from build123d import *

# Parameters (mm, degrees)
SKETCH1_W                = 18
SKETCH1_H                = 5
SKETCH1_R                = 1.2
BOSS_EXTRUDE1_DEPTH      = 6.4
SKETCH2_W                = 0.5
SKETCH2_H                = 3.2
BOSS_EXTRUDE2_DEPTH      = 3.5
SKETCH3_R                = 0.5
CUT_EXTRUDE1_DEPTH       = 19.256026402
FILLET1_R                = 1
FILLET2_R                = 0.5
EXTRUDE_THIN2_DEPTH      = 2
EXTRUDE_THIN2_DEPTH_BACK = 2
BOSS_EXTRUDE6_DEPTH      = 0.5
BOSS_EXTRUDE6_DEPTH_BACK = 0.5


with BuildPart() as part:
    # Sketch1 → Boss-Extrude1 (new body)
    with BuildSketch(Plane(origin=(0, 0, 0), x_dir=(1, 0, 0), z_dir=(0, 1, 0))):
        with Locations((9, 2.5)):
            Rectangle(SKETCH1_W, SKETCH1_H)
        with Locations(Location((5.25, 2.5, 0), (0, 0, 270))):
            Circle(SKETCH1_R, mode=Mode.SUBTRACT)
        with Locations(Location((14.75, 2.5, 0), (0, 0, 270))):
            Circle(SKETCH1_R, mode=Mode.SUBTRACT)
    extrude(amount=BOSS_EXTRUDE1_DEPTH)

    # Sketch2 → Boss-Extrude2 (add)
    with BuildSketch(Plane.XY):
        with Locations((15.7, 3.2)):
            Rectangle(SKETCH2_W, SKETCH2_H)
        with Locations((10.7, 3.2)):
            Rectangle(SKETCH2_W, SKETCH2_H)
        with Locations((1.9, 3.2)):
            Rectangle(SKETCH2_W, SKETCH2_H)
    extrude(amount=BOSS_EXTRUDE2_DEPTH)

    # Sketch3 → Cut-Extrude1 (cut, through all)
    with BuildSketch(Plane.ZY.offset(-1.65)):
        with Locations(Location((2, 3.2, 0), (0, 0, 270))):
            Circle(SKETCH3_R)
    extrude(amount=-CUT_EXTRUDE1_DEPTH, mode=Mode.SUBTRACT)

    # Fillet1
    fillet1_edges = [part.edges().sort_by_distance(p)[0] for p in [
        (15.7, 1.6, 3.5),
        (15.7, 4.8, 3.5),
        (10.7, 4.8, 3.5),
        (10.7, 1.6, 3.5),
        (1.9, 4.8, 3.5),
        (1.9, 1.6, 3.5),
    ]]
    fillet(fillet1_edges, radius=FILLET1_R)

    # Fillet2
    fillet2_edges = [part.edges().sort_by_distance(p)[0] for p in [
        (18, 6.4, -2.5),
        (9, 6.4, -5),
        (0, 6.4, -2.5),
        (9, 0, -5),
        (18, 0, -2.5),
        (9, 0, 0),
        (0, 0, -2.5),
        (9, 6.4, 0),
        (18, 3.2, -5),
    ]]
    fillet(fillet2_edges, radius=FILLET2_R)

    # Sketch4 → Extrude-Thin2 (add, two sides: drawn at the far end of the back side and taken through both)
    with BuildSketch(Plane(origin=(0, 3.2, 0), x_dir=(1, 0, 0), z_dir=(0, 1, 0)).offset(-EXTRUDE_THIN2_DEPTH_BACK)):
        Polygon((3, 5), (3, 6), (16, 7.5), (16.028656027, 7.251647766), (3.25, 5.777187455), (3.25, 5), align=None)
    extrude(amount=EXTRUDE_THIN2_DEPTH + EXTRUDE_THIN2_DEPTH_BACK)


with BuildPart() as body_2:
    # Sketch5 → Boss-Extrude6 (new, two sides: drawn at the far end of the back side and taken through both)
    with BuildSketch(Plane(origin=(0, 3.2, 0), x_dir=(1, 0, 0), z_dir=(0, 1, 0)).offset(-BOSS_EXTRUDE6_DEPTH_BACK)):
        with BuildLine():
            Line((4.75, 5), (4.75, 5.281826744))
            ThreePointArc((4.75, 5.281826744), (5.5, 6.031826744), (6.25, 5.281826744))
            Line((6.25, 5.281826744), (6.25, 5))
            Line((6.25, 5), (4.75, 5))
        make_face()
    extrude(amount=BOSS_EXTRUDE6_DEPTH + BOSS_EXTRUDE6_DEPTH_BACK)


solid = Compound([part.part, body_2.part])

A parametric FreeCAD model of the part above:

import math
import FreeCAD as App
import Part
import Sketcher
from FreeCAD import Vector


def edges_at(feature, points):
    """Names of the edges that pass closest to the given points."""
    edges = feature.Shape.Edges
    near = lambda p: min(range(len(edges)), key=lambda i: edges[i].distToShape(Part.Vertex(*p))[0])
    return sorted({f"Edge{near(p) + 1}" for p in points})


def add_polygon(sketch, points):
    """Adds a closed chain of lines whose ends are joined by coincident constraints."""
    first, n = sketch.GeometryCount, len(points)
    for a, b in zip(points, points[1:] + points[:1]):
        sketch.addGeometry(Part.LineSegment(App.Vector(*a, 0), App.Vector(*b, 0)), False)
    for i in range(n):
        sketch.addConstraint(Sketcher.Constraint("Coincident", first + i, 2, first + (i + 1) % n, 1))

doc = App.newDocument("Part")
body = doc.addObject("PartDesign::Body", "Body")

# Sketch on XZ plane
sketch1 = doc.addObject("Sketcher::SketchObject", "Sketch")
body.addObject(sketch1)
sketch1.AttachmentSupport = (doc.XZ_Plane, [""])
sketch1.MapMode = "FlatFace"
add_polygon(sketch1, [(0, -5), (0, 0), (18, 0), (18, -5)])  # lines 0-3
sketch1.addGeometry(Part.Circle(Vector(5.25, -2.5, 0), Vector(0, 0, 1), 1.2), False)  # 4
sketch1.addGeometry(Part.Circle(Vector(14.75, -2.5, 0), Vector(0, 0, 1), 1.2), False)  # 5
sketch1.addConstraint([
    Sketcher.Constraint("Vertical", 0),
    Sketcher.Constraint("Horizontal", 1),
    Sketcher.Constraint("Vertical", 2),
    Sketcher.Constraint("Horizontal", 3),
    Sketcher.Constraint("Coincident", 0, 2, -1, 1),
    Sketcher.Constraint("Equal", 4, 5),
    Sketcher.Constraint("Horizontal", 4, 3, 5, 3),
    Sketcher.Constraint("Diameter", 4, 2.4),
    Sketcher.Constraint("DistanceX", 1, 1, 1, 2, 18.0),
    Sketcher.Constraint("DistanceY", 0, 1, 0, 2, 5.0),
    Sketcher.Constraint("DistanceY", 4, 3, -1, 1, 2.5),
    Sketcher.Constraint("DistanceX", 4, 3, 5, 3, 9.5),
    Sketcher.Constraint("DistanceX", -1, 1, 4, 3, 5.25),
])
pad1 = doc.addObject("PartDesign::Pad", "Pad")
body.addObject(pad1)
pad1.Profile = sketch1
pad1.Length = 6.4
pad1.Reversed = True

# Sketch on XY plane
sketch2 = doc.addObject("Sketcher::SketchObject", "Sketch001")
body.addObject(sketch2)
sketch2.AttachmentSupport = (doc.XY_Plane, [""])
sketch2.MapMode = "FlatFace"
add_polygon(sketch2, [(15.45, 4.8), (15.45, 1.6), (15.95, 1.6), (15.95, 4.8)])  # lines 0-3
add_polygon(sketch2, [(10.45, 4.8), (10.45, 1.6), (10.95, 1.6), (10.95, 4.8)])  # lines 4-7
add_polygon(sketch2, [(1.65, 4.8), (1.65, 1.6), (2.15, 1.6), (2.15, 4.8)])  # lines 8-11
sketch2.addConstraint([
    Sketcher.Constraint("Vertical", 0),
    Sketcher.Constraint("Horizontal", 1),
    Sketcher.Constraint("Vertical", 2),
    Sketcher.Constraint("Horizontal", 3),
    Sketcher.Constraint("Vertical", 4),
    Sketcher.Constraint("Horizontal", 5),
    Sketcher.Constraint("Vertical", 6),
    Sketcher.Constraint("Horizontal", 7),
    Sketcher.Constraint("Vertical", 8),
    Sketcher.Constraint("Horizontal", 9),
    Sketcher.Constraint("Vertical", 10),
    Sketcher.Constraint("Horizontal", 11),
    Sketcher.Constraint("Horizontal", 1, 2, 4, 2),
    Sketcher.Constraint("Horizontal", 3, 2, 6, 2),
    Sketcher.Constraint("Horizontal", 5, 2, 8, 2),
    Sketcher.Constraint("Horizontal", 7, 2, 10, 2),
    Sketcher.Constraint("Equal", 3, 5),
    Sketcher.Constraint("Equal", 7, 9),
    Sketcher.Constraint("DistanceX", 1, 1, 1, 2, 0.5),
    Sketcher.Constraint("DistanceY", 0, 2, 0, 1, 3.2),
    Sketcher.Constraint("DistanceX", 4, 2, 0, 2, 5.0),
    Sketcher.Constraint("DistanceY", -1, 1, 0, 2, 1.6),
    Sketcher.Constraint("DistanceX", 8, 2, 4, 2, 8.8),
    Sketcher.Constraint("DistanceX", -1, 1, 0, 2, 15.45),
])
pad2 = doc.addObject("PartDesign::Pad", "Pad001")
body.addObject(pad2)
pad2.Profile = sketch2
pad2.Length = 3.5

# Sketch on YZ plane
sketch3 = doc.addObject("Sketcher::SketchObject", "Sketch002")
body.addObject(sketch3)
sketch3.AttachmentSupport = (doc.YZ_Plane, [""])
sketch3.MapMode = "FlatFace"
sketch3.AttachmentOffset = App.Placement(Vector(0, 0, 1.65), App.Rotation())
sketch3.addGeometry(Part.Circle(Vector(3.2, 2, 0), Vector(0, 0, 1), 0.5), False)
sketch3.addConstraint([
    Sketcher.Constraint("Diameter", 0, 1.0),
    Sketcher.Constraint("DistanceY", -1, 1, 0, 3, 2.0),
    Sketcher.Constraint("DistanceX", -1, 1, 0, 3, 3.2),
])
pocket1 = doc.addObject("PartDesign::Pocket", "Pocket")
body.addObject(pocket1)
pocket1.Profile = sketch3
pocket1.Type = "ThroughAll"
pocket1.Reversed = True
doc.recompute()

fillet = doc.addObject("PartDesign::Fillet", "Fillet")
body.addObject(fillet)
fillet.Base = (pocket1, edges_at(pocket1, [
    (15.7, 1.6, 3.5),
    (15.7, 4.8, 3.5),
    (10.7, 4.8, 3.5),
    (10.7, 1.6, 3.5),
    (1.9, 4.8, 3.5),
    (1.9, 1.6, 3.5),
]))
fillet.Radius = 1
doc.recompute()

fillet2 = doc.addObject("PartDesign::Fillet", "Fillet001")
body.addObject(fillet2)
fillet2.Base = (fillet, edges_at(fillet, [
    (18, 6.4, -2.5),
    (9, 6.4, -5),
    (0, 6.4, -2.5),
    (9, 0, -5),
    (18, 0, -2.5),
    (9, 0, 0),
    (0, 0, -2.5),
    (9, 6.4, 0),
    (18, 3.2, -5),
]))
fillet2.Radius = 0.5

# Sketch on XZ plane
sketch4 = doc.addObject("Sketcher::SketchObject", "Sketch003")
body.addObject(sketch4)
sketch4.AttachmentSupport = (doc.XZ_Plane, [""])
sketch4.MapMode = "FlatFace"
sketch4.AttachmentOffset = App.Placement(Vector(0, 0, -3.2), App.Rotation())
add_polygon(sketch4, [(3, -6), (3, -5), (3.25, -5), (3.25, -5.777187), (16.028656, -7.251648), (16, -7.5)])  # lines 0-5
sketch4.addConstraint([
    Sketcher.Constraint("Vertical", 0),
    Sketcher.Constraint("Horizontal", 1),
    Sketcher.Constraint("Vertical", 2),
    Sketcher.Constraint("Perpendicular", 3, 4),
    Sketcher.Constraint("Perpendicular", 4, 5),
    Sketcher.Constraint("DistanceY", 0, 1, 0, 2, 1.0),
    Sketcher.Constraint("DistanceX", -1, 1, 0, 2, 3.0),
    Sketcher.Constraint("DistanceY", 0, 2, -1, 1, 5.0),
    Sketcher.Constraint("DistanceX", -1, 1, 4, 2, 16.0),
    Sketcher.Constraint("DistanceX", 1, 1, 1, 2, 0.25),
    Sketcher.Constraint("DistanceY", 4, 2, -1, 1, 7.5),
    Sketcher.Constraint("Distance", 4, 0.25),
])
pad3 = doc.addObject("PartDesign::Pad", "Pad002")
body.addObject(pad3)
pad3.Profile = sketch4
pad3.Type = "TwoLengths"
pad3.Length = 2
pad3.Length2 = 2
pad3.Reversed = True
body2 = doc.addObject("PartDesign::Body", "Body001")

# Sketch on XZ plane
sketch5 = doc.addObject("Sketcher::SketchObject", "Sketch004")
body2.addObject(sketch5)
sketch5.AttachmentSupport = (doc.getObject("XZ_Plane001"), [""])
sketch5.MapMode = "FlatFace"
sketch5.AttachmentOffset = App.Placement(Vector(0, 0, -3.2), App.Rotation())
sketch5.addGeometry([
    Part.LineSegment(Vector(4.75, -5.281827, 0), Vector(4.75, -5, 0)),
    Part.LineSegment(Vector(4.75, -5, 0), Vector(6.25, -5, 0)),
    Part.LineSegment(Vector(6.25, -5, 0), Vector(6.25, -5.281827, 0)),
    Part.ArcOfCircle(Part.Circle(Vector(5.5, -5.281827, 0), Vector(0, 0, 1), 0.75), math.radians(180), math.radians(360)),
], False)
sketch5.addConstraint([
    Sketcher.Constraint("Coincident", 0, 2, 1, 1),
    Sketcher.Constraint("Coincident", 1, 2, 2, 1),
    Sketcher.Constraint("Tangent", 2, 2, 3, 2),
    Sketcher.Constraint("Tangent", 3, 1, 0, 1),
    Sketcher.Constraint("Vertical", 0),
    Sketcher.Constraint("Horizontal", 1),
    Sketcher.Constraint("Vertical", 2),
    Sketcher.Constraint("Radius", 3, 0.75),
    Sketcher.Constraint("DistanceY", 0, 2, -1, 1, 5.0),
    Sketcher.Constraint("DistanceX", -1, 1, 3, 3, 5.5),
    Sketcher.Constraint("DistanceY", 0, 1, 0, 2, 0.281827),
])
pad4 = doc.addObject("PartDesign::Pad", "Pad003")
body2.addObject(pad4)
pad4.Profile = sketch5
pad4.Type = "TwoLengths"
pad4.Length = 0.5
pad4.Length2 = 0.5
pad4.Reversed = True

doc.recompute()
